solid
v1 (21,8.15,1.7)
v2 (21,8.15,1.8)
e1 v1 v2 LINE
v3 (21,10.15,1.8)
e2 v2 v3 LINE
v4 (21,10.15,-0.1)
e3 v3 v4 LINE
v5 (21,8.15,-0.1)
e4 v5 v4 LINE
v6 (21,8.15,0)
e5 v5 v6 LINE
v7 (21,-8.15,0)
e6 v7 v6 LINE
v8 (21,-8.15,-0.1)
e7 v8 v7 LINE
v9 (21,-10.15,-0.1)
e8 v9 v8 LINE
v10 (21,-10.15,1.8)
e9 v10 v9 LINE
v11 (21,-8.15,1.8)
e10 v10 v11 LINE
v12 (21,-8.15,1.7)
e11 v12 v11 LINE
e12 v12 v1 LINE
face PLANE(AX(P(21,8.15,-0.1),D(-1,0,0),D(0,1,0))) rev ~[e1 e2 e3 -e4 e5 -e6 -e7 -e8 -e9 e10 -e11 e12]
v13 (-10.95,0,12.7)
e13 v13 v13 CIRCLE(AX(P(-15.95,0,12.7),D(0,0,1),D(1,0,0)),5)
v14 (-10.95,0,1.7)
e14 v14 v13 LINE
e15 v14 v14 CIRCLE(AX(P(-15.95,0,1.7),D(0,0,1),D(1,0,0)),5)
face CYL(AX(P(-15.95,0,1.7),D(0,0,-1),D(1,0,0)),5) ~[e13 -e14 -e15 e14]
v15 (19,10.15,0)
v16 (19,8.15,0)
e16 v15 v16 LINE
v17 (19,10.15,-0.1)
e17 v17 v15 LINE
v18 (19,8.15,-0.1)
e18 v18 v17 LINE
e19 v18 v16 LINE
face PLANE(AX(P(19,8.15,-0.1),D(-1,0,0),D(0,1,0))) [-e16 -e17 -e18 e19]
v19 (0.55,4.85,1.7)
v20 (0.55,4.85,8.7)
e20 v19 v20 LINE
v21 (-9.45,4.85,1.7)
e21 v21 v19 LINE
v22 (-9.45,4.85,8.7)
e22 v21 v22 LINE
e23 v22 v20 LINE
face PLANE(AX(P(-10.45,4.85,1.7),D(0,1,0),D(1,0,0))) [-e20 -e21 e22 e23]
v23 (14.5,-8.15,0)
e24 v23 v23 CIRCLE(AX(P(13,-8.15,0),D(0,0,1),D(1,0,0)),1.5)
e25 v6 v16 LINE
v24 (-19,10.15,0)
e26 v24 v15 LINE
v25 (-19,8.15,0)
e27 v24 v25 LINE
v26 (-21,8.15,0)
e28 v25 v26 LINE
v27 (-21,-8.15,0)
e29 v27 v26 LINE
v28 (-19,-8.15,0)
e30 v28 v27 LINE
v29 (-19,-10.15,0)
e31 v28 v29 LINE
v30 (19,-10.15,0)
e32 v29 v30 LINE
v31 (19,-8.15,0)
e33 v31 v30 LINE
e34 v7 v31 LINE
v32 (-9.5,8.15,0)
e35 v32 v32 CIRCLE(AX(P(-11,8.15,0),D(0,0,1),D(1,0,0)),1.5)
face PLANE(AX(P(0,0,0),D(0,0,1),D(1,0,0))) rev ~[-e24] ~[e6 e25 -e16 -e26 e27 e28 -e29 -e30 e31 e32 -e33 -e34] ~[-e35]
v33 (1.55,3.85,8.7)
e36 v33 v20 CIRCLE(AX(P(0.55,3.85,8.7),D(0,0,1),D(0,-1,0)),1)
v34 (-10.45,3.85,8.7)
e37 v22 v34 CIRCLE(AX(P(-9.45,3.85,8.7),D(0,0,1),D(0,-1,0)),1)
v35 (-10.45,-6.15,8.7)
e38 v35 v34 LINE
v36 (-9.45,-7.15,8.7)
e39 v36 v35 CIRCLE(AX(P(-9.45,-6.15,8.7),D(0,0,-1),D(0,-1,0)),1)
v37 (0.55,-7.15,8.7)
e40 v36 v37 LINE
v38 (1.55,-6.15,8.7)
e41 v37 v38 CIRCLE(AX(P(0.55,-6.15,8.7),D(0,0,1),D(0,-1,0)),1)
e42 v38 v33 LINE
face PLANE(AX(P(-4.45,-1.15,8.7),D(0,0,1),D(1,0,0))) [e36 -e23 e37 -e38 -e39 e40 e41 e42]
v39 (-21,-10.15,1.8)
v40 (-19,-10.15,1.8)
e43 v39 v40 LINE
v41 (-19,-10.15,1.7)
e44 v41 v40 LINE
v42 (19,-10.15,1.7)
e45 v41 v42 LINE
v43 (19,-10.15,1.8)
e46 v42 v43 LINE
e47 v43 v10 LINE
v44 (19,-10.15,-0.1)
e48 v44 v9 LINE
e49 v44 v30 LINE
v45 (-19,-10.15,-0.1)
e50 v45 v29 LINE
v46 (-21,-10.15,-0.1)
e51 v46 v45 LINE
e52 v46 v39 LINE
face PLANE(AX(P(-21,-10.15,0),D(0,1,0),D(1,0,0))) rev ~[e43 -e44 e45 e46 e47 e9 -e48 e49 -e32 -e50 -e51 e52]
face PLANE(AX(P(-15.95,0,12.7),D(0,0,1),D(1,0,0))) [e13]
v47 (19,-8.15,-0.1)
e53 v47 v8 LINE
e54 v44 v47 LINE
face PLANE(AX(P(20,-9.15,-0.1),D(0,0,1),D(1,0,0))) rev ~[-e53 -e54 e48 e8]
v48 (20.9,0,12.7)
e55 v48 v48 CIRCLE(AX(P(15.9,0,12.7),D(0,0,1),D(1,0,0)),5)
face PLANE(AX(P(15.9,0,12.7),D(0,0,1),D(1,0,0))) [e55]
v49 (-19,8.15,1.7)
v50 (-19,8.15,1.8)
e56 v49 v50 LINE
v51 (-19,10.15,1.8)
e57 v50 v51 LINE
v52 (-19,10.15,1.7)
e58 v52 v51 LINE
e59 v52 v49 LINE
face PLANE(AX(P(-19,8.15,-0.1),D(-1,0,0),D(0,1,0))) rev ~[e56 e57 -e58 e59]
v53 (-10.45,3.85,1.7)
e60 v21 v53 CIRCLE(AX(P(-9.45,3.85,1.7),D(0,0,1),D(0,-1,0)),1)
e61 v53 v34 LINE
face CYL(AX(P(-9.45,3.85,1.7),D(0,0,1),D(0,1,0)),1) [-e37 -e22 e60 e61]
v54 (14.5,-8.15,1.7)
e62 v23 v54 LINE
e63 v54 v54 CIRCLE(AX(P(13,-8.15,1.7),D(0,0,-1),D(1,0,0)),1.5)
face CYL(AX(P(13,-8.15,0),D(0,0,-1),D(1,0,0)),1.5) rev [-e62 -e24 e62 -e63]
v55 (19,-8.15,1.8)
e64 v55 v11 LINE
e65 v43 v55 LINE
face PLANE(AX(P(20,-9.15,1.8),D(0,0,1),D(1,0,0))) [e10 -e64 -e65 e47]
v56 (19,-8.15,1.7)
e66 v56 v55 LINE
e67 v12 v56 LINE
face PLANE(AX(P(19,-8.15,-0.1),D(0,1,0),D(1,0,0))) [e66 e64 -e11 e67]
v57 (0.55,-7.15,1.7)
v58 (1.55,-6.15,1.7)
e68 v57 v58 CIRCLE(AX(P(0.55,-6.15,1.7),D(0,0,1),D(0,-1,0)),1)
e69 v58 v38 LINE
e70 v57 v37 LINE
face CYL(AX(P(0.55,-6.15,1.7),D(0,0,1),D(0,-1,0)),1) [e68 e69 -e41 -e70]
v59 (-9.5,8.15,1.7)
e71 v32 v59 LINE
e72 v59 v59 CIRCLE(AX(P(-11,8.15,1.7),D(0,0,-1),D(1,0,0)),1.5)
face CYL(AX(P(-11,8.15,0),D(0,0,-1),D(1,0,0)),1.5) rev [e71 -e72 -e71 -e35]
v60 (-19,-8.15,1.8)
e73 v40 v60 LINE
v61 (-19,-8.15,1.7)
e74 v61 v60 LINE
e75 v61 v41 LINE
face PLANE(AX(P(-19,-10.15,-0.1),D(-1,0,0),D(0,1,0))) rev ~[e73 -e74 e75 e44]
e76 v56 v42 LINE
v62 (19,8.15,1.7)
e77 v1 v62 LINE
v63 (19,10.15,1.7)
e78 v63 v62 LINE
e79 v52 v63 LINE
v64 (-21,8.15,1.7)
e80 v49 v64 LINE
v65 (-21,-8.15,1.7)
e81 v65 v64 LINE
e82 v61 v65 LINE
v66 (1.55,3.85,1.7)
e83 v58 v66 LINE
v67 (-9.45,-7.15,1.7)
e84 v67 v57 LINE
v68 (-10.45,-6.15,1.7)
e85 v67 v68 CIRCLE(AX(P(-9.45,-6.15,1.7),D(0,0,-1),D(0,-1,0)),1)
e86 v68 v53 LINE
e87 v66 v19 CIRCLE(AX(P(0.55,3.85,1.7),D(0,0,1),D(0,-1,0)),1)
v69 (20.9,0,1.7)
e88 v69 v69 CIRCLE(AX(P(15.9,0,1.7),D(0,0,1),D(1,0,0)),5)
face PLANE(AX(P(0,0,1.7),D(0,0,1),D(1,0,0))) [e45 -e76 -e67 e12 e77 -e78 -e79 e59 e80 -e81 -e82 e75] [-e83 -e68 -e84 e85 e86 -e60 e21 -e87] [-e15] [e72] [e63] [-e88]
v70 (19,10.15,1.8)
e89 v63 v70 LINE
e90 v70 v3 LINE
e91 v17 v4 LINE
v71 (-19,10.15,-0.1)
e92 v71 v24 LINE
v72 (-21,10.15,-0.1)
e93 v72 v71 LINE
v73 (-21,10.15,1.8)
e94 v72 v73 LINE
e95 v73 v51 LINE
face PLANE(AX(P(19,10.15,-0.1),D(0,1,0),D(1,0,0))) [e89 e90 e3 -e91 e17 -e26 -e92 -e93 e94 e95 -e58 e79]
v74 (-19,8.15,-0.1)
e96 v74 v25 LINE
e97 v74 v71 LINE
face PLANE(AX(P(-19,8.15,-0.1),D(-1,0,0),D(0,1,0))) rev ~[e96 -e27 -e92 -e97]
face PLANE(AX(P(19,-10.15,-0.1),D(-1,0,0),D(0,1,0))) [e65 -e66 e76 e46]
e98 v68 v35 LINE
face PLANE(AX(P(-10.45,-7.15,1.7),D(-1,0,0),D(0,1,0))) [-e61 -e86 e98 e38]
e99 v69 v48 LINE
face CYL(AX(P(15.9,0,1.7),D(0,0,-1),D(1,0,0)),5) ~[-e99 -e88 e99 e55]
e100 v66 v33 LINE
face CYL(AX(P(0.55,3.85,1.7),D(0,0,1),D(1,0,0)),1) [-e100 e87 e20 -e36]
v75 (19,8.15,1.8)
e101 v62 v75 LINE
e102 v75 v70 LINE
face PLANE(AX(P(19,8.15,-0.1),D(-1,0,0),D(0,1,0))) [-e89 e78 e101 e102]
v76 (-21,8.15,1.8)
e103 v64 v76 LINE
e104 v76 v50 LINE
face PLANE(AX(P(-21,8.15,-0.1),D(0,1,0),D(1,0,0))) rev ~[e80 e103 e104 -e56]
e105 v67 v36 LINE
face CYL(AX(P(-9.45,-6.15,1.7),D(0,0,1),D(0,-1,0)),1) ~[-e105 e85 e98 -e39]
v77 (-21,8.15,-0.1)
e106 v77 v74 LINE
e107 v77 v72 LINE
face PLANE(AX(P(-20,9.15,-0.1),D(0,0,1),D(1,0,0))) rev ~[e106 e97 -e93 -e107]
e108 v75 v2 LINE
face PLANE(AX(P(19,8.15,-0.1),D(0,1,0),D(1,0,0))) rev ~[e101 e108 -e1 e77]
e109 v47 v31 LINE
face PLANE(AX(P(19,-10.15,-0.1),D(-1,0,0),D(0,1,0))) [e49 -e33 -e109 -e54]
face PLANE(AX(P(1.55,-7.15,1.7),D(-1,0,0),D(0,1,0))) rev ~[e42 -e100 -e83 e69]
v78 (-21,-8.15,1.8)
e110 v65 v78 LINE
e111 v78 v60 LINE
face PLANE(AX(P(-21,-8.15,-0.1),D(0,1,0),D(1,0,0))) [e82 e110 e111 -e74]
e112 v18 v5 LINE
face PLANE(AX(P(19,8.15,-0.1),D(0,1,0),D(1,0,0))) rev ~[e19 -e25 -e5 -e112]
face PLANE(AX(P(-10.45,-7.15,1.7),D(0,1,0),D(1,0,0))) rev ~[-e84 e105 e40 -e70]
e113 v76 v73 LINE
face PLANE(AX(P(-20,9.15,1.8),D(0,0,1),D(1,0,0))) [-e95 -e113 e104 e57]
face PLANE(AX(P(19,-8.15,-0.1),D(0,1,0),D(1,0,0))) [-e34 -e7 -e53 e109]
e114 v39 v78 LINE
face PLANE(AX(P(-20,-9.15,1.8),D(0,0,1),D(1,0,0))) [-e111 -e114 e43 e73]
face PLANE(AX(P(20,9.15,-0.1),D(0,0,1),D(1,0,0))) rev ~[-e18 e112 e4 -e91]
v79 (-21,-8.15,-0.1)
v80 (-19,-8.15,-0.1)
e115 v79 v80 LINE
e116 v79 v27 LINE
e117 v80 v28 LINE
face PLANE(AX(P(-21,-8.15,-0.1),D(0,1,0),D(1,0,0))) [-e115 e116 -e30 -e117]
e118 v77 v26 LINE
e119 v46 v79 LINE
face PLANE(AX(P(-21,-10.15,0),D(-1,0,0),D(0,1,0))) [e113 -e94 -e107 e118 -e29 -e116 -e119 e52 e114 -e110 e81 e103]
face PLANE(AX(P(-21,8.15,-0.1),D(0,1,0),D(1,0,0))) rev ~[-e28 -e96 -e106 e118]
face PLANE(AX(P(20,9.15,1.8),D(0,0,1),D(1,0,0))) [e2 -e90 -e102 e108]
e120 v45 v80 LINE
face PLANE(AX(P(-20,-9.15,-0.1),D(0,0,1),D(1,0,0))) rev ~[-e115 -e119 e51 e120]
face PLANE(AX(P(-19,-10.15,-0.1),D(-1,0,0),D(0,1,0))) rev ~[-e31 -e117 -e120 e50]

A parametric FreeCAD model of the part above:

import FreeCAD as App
import Part
import Sketcher

V = App.Vector
Q = App.Units.Quantity


def edges_at(feature, points):
    """Names of the edges that pass closest to the given points."""
    edges = feature.Shape.Edges
    near = lambda p: min(range(len(edges)), key=lambda i: edges[i].distToShape(Part.Vertex(*p))[0])
    return sorted({f"Edge{near(p) + 1}" for p in points})

doc = App.newDocument("Part")
body = doc.addObject("PartDesign::Body", "Body")

sketch1 = doc.addObject("Sketcher::SketchObject", "Sketch")
body.addObject(sketch1)
sketch1.AttachmentSupport = (doc.XY_Plane, [""])
sketch1.MapMode = "FlatFace"
sketch1.addGeometry(Part.LineSegment(V(-21, 10, 0), V(-21, -10, 0)), False)
sketch1.addGeometry(Part.LineSegment(V(-21, -10, 0), V(21, -10, 0)), False)
sketch1.addGeometry(Part.LineSegment(V(21, -10, 0), V(21, 10, 0)), False)
sketch1.addGeometry(Part.LineSegment(V(21, 10, 0), V(-21, 10, 0)), False)
sketch1.addConstraint(Sketcher.Constraint("Coincident", 0, 2, 1, 1))
sketch1.addConstraint(Sketcher.Constraint("Coincident", 1, 2, 2, 1))
sketch1.addConstraint(Sketcher.Constraint("Coincident", 2, 2, 3, 1))
sketch1.addConstraint(Sketcher.Constraint("Coincident", 3, 2, 0, 1))
sketch1.addConstraint(Sketcher.Constraint("Vertical", 0))
sketch1.addConstraint(Sketcher.Constraint("Horizontal", 1))
sketch1.addConstraint(Sketcher.Constraint("Vertical", 2))
sketch1.addConstraint(Sketcher.Constraint("Horizontal", 3))
sketch1.addConstraint(Sketcher.Constraint("Symmetric", 0, 2, 2, 2, -1, 1))
sketch1.addConstraint(Sketcher.Constraint("DistanceX", 1, 1, 1, 2, Q("42 mm")))
sketch1.addConstraint(Sketcher.Constraint("DistanceY", 0, 2, 0, 1, Q("20.3 mm")))
pad1 = doc.addObject("PartDesign::Pad", "Pad")
body.addObject(pad1)
pad1.Profile = sketch1
pad1.Length = 1.7

sketch2 = doc.addObject("Sketcher::SketchObject", "Sketch001")
body.addObject(sketch2)
sketch2.AttachmentSupport = (doc.XY_Plane, [""])
sketch2.MapMode = "FlatFace"
sketch2.AttachmentOffset = App.Placement(V(0, 0, 1.7), App.Rotation())
sketch2.addGeometry(Part.Circle(V(-16, 0, 0), V(0, 0, 1), 5), False)
sketch2.addGeometry(Part.Circle(V(16, 0, 0), V(0, 0, 1), 5), False)
sketch2.addConstraint(Sketcher.Constraint("Equal", 0, 1))
sketch2.addConstraint(Sketcher.Constraint("PointOnObject", 0, 3, -1))
sketch2.addConstraint(Sketcher.Constraint("PointOnObject", 1, 3, -1))
sketch2.addConstraint(Sketcher.Constraint("Diameter", 0, Q("10 mm")))
sketch2.addConstraint(Sketcher.Constraint("DistanceX", -1, 1, 1, 3, Q("15.9 mm")))
sketch2.addConstraint(Sketcher.Constraint("DistanceX", 0, 3, -1, 1, Q("15.95 mm")))
pad2 = doc.addObject("PartDesign::Pad", "Pad001")
body.addObject(pad2)
pad2.Profile = sketch2
pad2.Length = 11

sketch3 = doc.addObject("Sketcher::SketchObject", "Sketch002")
body.addObject(sketch3)
sketch3.AttachmentSupport = (doc.XY_Plane, [""])
sketch3.MapMode = "FlatFace"
sketch3.AttachmentOffset = App.Placement(V(0, 0, 1.7), App.Rotation())
sketch3.addGeometry(Part.LineSegment(V(-10, 5, 0), V(-10, -7, 0)), False)
sketch3.addGeometry(Part.LineSegment(V(-10, -7, 0), V(2, -7, 0)), False)
sketch3.addGeometry(Part.LineSegment(V(2, -7, 0), V(2, 5, 0)), False)
sketch3.addGeometry(Part.LineSegment(V(2, 5, 0), V(-10, 5, 0)), False)
sketch3.addConstraint(Sketcher.Constraint("Coincident", 0, 2, 1, 1))
sketch3.addConstraint(Sketcher.Constraint("Coincident", 1, 2, 2, 1))
sketch3.addConstraint(Sketcher.Constraint("Coincident", 2, 2, 3, 1))
sketch3.addConstraint(Sketcher.Constraint("Coincident", 3, 2, 0, 1))
sketch3.addConstraint(Sketcher.Constraint("Vertical", 0))
sketch3.addConstraint(Sketcher.Constraint("Horizontal", 1))
sketch3.addConstraint(Sketcher.Constraint("Vertical", 2))
sketch3.addConstraint(Sketcher.Constraint("Horizontal", 3))
sketch3.addConstraint(Sketcher.Constraint("Equal", 3, 0))
sketch3.addConstraint(Sketcher.Constraint("DistanceX", 1, 1, 1, 2, Q("12 mm")))
sketch3.addConstraint(Sketcher.Constraint("DistanceX", 0, 2, -1, 1, Q("10.45 mm")))
sketch3.addConstraint(Sketcher.Constraint("DistanceY", 0, 2, -1, 1, Q("7.15 mm")))
pad3 = doc.addObject("PartDesign::Pad", "Pad002")
body.addObject(pad3)
pad3.Profile = sketch3
pad3.Length = 7
doc.recompute()

fillet = doc.addObject("PartDesign::Fillet", "Fillet")
body.addObject(fillet)
fillet.Base = (pad3, edges_at(pad3, [
    (-10.45, 4.85, 5.2),
    (-10.45, -7.15, 5.2),
    (1.55, -7.15, 5.2),
    (1.55, 4.85, 5.2),
]))
fillet.Radius = 1

sketch4 = doc.addObject("Sketcher::SketchObject", "Sketch003")
body.addObject(sketch4)
sketch4.AttachmentSupport = (doc.XY_Plane, [""])
sketch4.MapMode = "FlatFace"
sketch4.addGeometry(Part.Circle(V(-11, 8.2, 0), V(0, 0, 1), 1.5), False)
sketch4.addGeometry(Part.Circle(V(13, -8.2, 0), V(0, 0, 1), 1.5), False)
sketch4.addConstraint(Sketcher.Constraint("Equal", 0, 1))
sketch4.addConstraint(Sketcher.Constraint("Diameter", 0, Q("3 mm")))
sketch4.addConstraint(Sketcher.Constraint("DistanceX", 0, 3, -1, 1, Q("11 mm")))
sketch4.addConstraint(Sketcher.Constraint("DistanceX", -1, 1, 1, 3, Q("13 mm")))
sketch4.addConstraint(Sketcher.Constraint("DistanceY", 1, 3, 0, 3, Q("16.3 mm")))
sketch4.addConstraint(Sketcher.Constraint("DistanceY", -1, 1, 0, 3, Q("8.15 mm")))
pocket1 = doc.addObject("PartDesign::Pocket", "Pocket")
body.addObject(pocket1)
pocket1.Profile = sketch4
pocket1.Type = "ThroughAll"
pocket1.Reversed = True

sketch5 = doc.addObject("Sketcher::SketchObject", "Sketch004")
body.addObject(sketch5)
sketch5.AttachmentSupport = (doc.XY_Plane, [""])
sketch5.MapMode = "FlatFace"
sketch5.AttachmentOffset = App.Placement(V(0, 0, -0.1), App.Rotation())
sketch5.addGeometry(Part.LineSegment(V(19, 10.2, 0), V(19, 8.2, 0)), False)
sketch5.addGeometry(Part.LineSegment(V(19, 8.2, 0), V(21, 8.2, 0)), False)
sketch5.addGeometry(Part.LineSegment(V(21, 8.2, 0), V(21, 10.2, 0)), False)
sketch5.addGeometry(Part.LineSegment(V(21, 10.2, 0), V(19, 10.2, 0)), False)
sketch5.addGeometry(Part.LineSegment(V(-21, 10.2, 0), V(-21, 8.2, 0)), False)
sketch5.addGeometry(Part.LineSegment(V(-21, 8.2, 0), V(-19, 8.2, 0)), False)
sketch5.addGeometry(Part.LineSegment(V(-19, 8.2, 0), V(-19, 10.2, 0)), False)
sketch5.addGeometry(Part.LineSegment(V(-19, 10.2, 0), V(-21, 10.2, 0)), False)
sketch5.addGeometry(Part.LineSegment(V(19, -8.2, 0), V(19, -10.2, 0)), False)
sketch5.addGeometry(Part.LineSegment(V(19, -10.2, 0), V(21, -10.2, 0)), False)
sketch5.addGeometry(Part.LineSegment(V(21, -10.2, 0), V(21, -8.2, 0)), False)
sketch5.addGeometry(Part.LineSegment(V(21, -8.2, 0), V(19, -8.2, 0)), False)
sketch5.addGeometry(Part.LineSegment(V(-21, -8.2, 0), V(-21, -10.2, 0)), False)
sketch5.addGeometry(Part.LineSegment(V(-21, -10.2, 0), V(-19, -10.2, 0)), False)
sketch5.addGeometry(Part.LineSegment(V(-19, -10.2, 0), V(-19, -8.2, 0)), False)
sketch5.addGeometry(Part.LineSegment(V(-19, -8.2, 0), V(-21, -8.2, 0)), False)
sketch5.addConstraint(Sketcher.Constraint("Coincident", 0, 2, 1, 1))
sketch5.addConstraint(Sketcher.Constraint("Coincident", 1, 2, 2, 1))
sketch5.addConstraint(Sketcher.Constraint("Coincident", 2, 2, 3, 1))
sketch5.addConstraint(Sketcher.Constraint("Coincident", 3, 2, 0, 1))
sketch5.addConstraint(Sketcher.Constraint("Coincident", 4, 2, 5, 1))
sketch5.addConstraint(Sketcher.Constraint("Coincident", 5, 2, 6, 1))
sketch5.addConstraint(Sketcher.Constraint("Coincident", 6, 2, 7, 1))
sketch5.addConstraint(Sketcher.Constraint("Coincident", 7, 2, 4, 1))
sketch5.addConstraint(Sketcher.Constraint("Coincident", 8, 2, 9, 1))
sketch5.addConstraint(Sketcher.Constraint("Coincident", 9, 2, 10, 1))
sketch5.addConstraint(Sketcher.Constraint("Coincident", 10, 2, 11, 1))
sketch5.addConstraint(Sketcher.Constraint("Coincident", 11, 2, 8, 1))
sketch5.addConstraint(Sketcher.Constraint("Coincident", 12, 2, 13, 1))
sketch5.addConstraint(Sketcher.Constraint("Coincident", 13, 2, 14, 1))
sketch5.addConstraint(Sketcher.Constraint("Coincident", 14, 2, 15, 1))
sketch5.addConstraint(Sketcher.Constraint("Coincident", 15, 2, 12, 1))
sketch5.addConstraint(Sketcher.Constraint("Vertical", 0))
sketch5.addConstraint(Sketcher.Constraint("Horizontal", 1))
sketch5.addConstraint(Sketcher.Constraint("Vertical", 2))
sketch5.addConstraint(Sketcher.Constraint("Horizontal", 3))
sketch5.addConstraint(Sketcher.Constraint("Vertical", 4))
sketch5.addConstraint(Sketcher.Constraint("Horizontal", 5))
sketch5.addConstraint(Sketcher.Constraint("Vertical", 6))
sketch5.addConstraint(Sketcher.Constraint("Horizontal", 7))
sketch5.addConstraint(Sketcher.Constraint("Vertical", 8))
sketch5.addConstraint(Sketcher.Constraint("Horizontal", 9))
sketch5.addConstraint(Sketcher.Constraint("Vertical", 10))
sketch5.addConstraint(Sketcher.Constraint("Horizontal", 11))
sketch5.addConstraint(Sketcher.Constraint("Vertical", 12))
sketch5.addConstraint(Sketcher.Constraint("Horizontal", 13))
sketch5.addConstraint(Sketcher.Constraint("Vertical", 14))
sketch5.addConstraint(Sketcher.Constraint("Horizontal", 15))
sketch5.addConstraint(Sketcher.Constraint("Symmetric", 6, 2, 8, 2, -1, 1))
sketch5.addConstraint(Sketcher.Constraint("Symmetric", 4, 2, 10, 2, -1, 1))
sketch5.addConstraint(Sketcher.Constraint("Symmetric", 2, 2, 12, 2, -1, 1))
sketch5.addConstraint(Sketcher.Constraint("Symmetric", 0, 2, 14, 2, -1, 1))
sketch5.addConstraint(Sketcher.Constraint("Symmetric", 1, 2, 4, 2, -2))
sketch5.addConstraint(Sketcher.Constraint("Symmetric", 3, 2, 6, 2, -2))
sketch5.addConstraint(Sketcher.Constraint("Equal", 15, 0))
sketch5.addConstraint(Sketcher.Constraint("DistanceX", 1, 1, 1, 2, Q("2 mm")))
sketch5.addConstraint(Sketcher.Constraint("DistanceX", -1, 1, 0, 2, Q("19 mm")))
sketch5.addConstraint(Sketcher.Constraint("DistanceY", 8, 2, 0, 2, Q("18.3 mm")))
pad4 = doc.addObject("PartDesign::Pad", "Pad003")
body.addObject(pad4)
pad4.Profile = sketch5
pad4.Length = 1.9

doc.recompute()
